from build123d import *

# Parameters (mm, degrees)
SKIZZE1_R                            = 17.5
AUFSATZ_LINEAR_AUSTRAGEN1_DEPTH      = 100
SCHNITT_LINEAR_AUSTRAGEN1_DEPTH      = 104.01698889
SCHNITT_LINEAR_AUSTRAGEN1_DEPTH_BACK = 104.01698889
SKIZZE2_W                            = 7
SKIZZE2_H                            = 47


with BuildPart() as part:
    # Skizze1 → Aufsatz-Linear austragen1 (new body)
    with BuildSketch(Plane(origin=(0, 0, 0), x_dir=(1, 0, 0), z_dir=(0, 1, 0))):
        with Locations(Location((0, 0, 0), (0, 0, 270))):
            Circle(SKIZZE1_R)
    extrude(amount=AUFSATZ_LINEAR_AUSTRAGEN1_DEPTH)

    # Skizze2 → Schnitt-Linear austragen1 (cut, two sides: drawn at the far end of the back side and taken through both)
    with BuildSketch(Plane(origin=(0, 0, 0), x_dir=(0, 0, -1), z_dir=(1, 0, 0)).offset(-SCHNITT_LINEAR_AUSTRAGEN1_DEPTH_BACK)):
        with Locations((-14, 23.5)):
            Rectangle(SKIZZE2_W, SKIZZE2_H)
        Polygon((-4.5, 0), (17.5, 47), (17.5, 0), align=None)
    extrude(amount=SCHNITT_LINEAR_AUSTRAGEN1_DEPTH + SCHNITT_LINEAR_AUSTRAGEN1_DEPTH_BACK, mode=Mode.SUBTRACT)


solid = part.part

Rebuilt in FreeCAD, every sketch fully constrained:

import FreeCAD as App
import Part
import Sketcher

V = App.Vector
Q = App.Units.Quantity

doc = App.newDocument("Part")
body = doc.addObject("PartDesign::Body", "Body")

# Sketch on XZ plane
sketch1 = body.newObject("Sketcher::SketchObject", "Sketch")
sketch1.AttachmentSupport = (doc.getObject("XZ_Plane"), [""])
sketch1.MapMode = "FlatFace"
sketch1.addGeometry(Part.Circle(V(0, 0, 0), V(0, 0, 1), 18), False)
sketch1.addConstraint(Sketcher.Constraint("Coincident", 0, 3, -1, 1))
sketch1.addConstraint(Sketcher.Constraint("Diameter", 0, Q("35 mm")))
pad1 = body.newObject("PartDesign::Pad", "Pad")
pad1.Profile = sketch1
pad1.Length = 100
pad1.Reversed = True

# Sketch on YZ plane
sketch2 = body.newObject("Sketcher::SketchObject", "Sketch001")
sketch2.AttachmentSupport = (doc.getObject("YZ_Plane"), [""])
sketch2.MapMode = "FlatFace"
sketch2.addGeometry(Part.LineSegment(V(47, 18, 0), V(0, 18, 0)), False)
sketch2.addGeometry(Part.LineSegment(V(0, 18, 0), V(0, 10, 0)), False)
sketch2.addGeometry(Part.LineSegment(V(0, 10, 0), V(47, 10, 0)), False)
sketch2.addGeometry(Part.LineSegment(V(47, 10, 0), V(47, 18, 0)), False)
sketch2.addGeometry(Part.LineSegment(V(47, -18, 0), V(0, 4, 0)), False)
sketch2.addGeometry(Part.LineSegment(V(0, 4, 0), V(0, -18, 0)), False)
sketch2.addGeometry(Part.LineSegment(V(0, -18, 0), V(47, -18, 0)), False)
sketch2.addConstraint(Sketcher.Constraint("Coincident", 0, 2, 1, 1))
sketch2.addConstraint(Sketcher.Constraint("Coincident", 1, 2, 2, 1))
sketch2.addConstraint(Sketcher.Constraint("Coincident", 2, 2, 3, 1))
sketch2.addConstraint(Sketcher.Constraint("Coincident", 3, 2, 0, 1))
sketch2.addConstraint(Sketcher.Constraint("Coincident", 4, 2, 5, 1))
sketch2.addConstraint(Sketcher.Constraint("Coincident", 5, 2, 6, 1))
sketch2.addConstraint(Sketcher.Constraint("Coincident", 6, 2, 4, 1))
sketch2.addConstraint(Sketcher.Constraint("Horizontal", 0))
sketch2.addConstraint(Sketcher.Constraint("Vertical", 1))
sketch2.addConstraint(Sketcher.Constraint("Horizontal", 2))
sketch2.addConstraint(Sketcher.Constraint("Vertical", 3))
sketch2.addConstraint(Sketcher.Constraint("Vertical", 5))
sketch2.addConstraint(Sketcher.Constraint("Horizontal", 6))
sketch2.addConstraint(Sketcher.Constraint("Symmetric", 0, 2, 5, 2, -1, 1))
sketch2.addConstraint(Sketcher.Constraint("PointOnObject", 0, 2, -2))
sketch2.addConstraint(Sketcher.Constraint("Vertical", 3, 2, 6, 2))
sketch2.addConstraint(Sketcher.Constraint("DistanceX", 0, 2, 0, 1, Q("47 mm")))
sketch2.addConstraint(Sketcher.Constraint("DistanceY", 1, 2, 1, 1, Q("7 mm")))
sketch2.addConstraint(Sketcher.Constraint("DistanceY", 5, 2, 5, 1, Q("22 mm")))
sketch2.addConstraint(Sketcher.Constraint("DistanceY", 4, 2, 1, 2, Q("6 mm")))
pocket1 = body.newObject("PartDesign::Pocket", "Pocket")
pocket1.Profile = sketch2
pocket1.Type = "ThroughAll"
pocket1.Midplane = True

doc.recompute()
